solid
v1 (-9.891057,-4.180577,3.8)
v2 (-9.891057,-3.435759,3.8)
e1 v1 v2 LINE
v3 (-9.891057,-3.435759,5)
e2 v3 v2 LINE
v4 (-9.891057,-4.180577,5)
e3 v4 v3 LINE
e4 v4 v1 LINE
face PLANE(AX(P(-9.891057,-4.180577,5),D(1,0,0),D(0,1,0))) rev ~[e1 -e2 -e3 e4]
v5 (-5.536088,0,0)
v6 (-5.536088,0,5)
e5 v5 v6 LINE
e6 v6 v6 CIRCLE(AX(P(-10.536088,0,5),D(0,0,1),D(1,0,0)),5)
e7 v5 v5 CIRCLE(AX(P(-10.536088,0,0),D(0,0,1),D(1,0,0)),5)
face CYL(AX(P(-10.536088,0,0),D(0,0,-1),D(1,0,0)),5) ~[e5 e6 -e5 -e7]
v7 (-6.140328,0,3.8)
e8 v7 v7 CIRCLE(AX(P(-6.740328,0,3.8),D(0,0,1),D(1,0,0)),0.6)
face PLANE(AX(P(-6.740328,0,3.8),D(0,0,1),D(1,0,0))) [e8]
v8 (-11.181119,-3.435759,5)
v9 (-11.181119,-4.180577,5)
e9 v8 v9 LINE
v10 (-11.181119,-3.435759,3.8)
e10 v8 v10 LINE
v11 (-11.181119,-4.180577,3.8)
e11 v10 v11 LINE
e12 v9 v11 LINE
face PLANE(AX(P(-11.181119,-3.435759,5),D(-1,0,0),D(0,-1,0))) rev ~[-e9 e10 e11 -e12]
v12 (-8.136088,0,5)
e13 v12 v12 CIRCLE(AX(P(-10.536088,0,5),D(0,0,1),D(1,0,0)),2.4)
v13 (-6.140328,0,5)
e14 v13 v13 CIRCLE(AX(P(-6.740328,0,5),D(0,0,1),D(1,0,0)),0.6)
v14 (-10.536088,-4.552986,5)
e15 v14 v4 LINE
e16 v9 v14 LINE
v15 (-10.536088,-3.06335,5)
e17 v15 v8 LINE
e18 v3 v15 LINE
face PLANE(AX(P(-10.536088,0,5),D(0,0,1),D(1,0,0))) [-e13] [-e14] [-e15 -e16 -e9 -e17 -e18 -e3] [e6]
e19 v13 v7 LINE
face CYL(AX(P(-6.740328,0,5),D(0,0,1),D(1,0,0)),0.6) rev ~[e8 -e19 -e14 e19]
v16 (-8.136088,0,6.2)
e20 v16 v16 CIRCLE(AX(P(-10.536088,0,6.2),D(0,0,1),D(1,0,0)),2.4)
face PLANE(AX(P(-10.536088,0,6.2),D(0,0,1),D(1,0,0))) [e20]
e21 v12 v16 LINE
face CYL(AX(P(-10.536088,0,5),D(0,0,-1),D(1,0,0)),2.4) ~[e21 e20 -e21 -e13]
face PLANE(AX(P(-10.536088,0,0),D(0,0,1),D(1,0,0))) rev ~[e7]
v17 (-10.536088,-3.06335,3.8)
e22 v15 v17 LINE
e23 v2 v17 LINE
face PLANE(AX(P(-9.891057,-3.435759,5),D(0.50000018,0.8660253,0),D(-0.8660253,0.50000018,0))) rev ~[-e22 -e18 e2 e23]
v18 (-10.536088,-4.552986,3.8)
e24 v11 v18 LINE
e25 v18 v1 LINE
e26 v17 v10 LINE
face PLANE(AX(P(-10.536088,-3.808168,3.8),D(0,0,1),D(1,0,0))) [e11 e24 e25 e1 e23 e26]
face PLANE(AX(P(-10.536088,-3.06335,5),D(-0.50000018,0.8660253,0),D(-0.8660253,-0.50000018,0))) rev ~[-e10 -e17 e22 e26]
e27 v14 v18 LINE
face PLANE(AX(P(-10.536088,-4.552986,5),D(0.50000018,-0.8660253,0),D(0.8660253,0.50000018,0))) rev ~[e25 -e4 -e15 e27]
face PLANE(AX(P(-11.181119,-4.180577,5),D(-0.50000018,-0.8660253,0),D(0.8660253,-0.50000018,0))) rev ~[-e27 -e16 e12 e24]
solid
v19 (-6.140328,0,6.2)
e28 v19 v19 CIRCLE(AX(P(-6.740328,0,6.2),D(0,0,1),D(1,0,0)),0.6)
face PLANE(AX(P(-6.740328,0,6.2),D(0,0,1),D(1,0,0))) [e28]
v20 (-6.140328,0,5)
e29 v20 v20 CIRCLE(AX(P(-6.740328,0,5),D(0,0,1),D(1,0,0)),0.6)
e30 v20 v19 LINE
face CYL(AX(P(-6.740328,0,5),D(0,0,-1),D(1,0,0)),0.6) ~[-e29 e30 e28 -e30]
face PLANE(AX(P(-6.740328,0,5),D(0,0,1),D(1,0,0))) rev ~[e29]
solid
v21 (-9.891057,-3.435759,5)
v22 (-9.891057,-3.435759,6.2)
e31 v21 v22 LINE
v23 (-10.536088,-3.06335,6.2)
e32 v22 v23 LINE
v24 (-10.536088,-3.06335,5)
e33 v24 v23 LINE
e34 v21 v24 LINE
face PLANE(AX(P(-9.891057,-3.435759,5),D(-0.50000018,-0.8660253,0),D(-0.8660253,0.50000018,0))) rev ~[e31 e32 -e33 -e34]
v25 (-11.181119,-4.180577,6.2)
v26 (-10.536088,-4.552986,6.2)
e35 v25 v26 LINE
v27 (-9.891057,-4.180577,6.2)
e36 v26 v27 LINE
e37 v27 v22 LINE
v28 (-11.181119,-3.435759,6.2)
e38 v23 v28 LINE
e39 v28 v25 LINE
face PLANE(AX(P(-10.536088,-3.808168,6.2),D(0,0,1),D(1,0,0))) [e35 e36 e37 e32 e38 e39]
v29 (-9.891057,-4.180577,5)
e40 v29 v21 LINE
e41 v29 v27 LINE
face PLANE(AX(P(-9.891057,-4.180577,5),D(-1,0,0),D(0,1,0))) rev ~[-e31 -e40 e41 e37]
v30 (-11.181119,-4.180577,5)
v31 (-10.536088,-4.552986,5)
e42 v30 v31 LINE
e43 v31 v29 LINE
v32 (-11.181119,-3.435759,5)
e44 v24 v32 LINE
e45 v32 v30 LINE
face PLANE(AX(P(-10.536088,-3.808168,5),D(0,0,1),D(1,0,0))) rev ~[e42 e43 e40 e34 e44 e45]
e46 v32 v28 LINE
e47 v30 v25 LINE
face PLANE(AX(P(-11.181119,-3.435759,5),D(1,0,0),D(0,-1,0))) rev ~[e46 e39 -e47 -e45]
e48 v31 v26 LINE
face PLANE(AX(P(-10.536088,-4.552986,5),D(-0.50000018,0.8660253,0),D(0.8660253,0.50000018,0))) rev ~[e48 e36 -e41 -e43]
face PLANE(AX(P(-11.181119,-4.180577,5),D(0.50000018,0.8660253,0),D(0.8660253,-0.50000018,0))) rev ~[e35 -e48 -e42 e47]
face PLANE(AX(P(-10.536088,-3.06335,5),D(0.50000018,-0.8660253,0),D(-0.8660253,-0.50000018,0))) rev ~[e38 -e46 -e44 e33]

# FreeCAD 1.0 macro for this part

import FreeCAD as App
import Part
import Sketcher
from FreeCAD import Vector
Q = App.Units.Quantity

doc = App.newDocument("Part")
body = doc.addObject("PartDesign::Body", "Body")
body.AllowCompound = True

# Sketch on XY plane
sketch1 = body.newObject("Sketcher::SketchObject", "Sketch")
sketch1.AttachmentSupport = (doc.getObject("XY_Plane"), [""])
sketch1.MapMode = "FlatFace"
sketch1.addGeometry(Part.Circle(Vector(-10.536088, 0, 0), Vector(0, 0, 1), 5), False)
sketch1.addConstraint(Sketcher.Constraint("PointOnObject", 0, 3, -1))
sketch1.addConstraint(Sketcher.Constraint("Diameter", 0, Q("10 mm")))
sketch1.addConstraint(Sketcher.Constraint("DistanceX", 0, 3, -1, 1, Q("10.536088 mm")))
pad1 = body.newObject("PartDesign::Pad", "Pad")
pad1.Profile = sketch1
pad1.Length = 5

# Sketch on XY plane
sketch2 = body.newObject("Sketcher::SketchObject", "Sketch001")
sketch2.AttachmentSupport = (doc.getObject("XY_Plane"), [""])
sketch2.MapMode = "FlatFace"
sketch2.AttachmentOffset = App.Placement(Vector(0, 0, 5), App.Rotation())
sketch2.addGeometry(Part.Circle(Vector(-6.740328, 0, 0), Vector(0, 0, 1), 0.6), False)
sketch2.addGeometry(Part.LineSegment(Vector(-9.891057, -4.180577, 0), Vector(-9.891057, -3.435759, 0)), False)
sketch2.addGeometry(Part.LineSegment(Vector(-9.891057, -3.435759, 0), Vector(-10.536088, -3.06335, 0)), False)
sketch2.addGeometry(Part.LineSegment(Vector(-10.536088, -3.06335, 0), Vector(-11.181119, -3.435759, 0)), False)
sketch2.addGeometry(Part.LineSegment(Vector(-11.181119, -3.435759, 0), Vector(-11.181119, -4.180577, 0)), False)
sketch2.addGeometry(Part.LineSegment(Vector(-11.181119, -4.180577, 0), Vector(-10.536088, -4.552986, 0)), False)
sketch2.addGeometry(Part.LineSegment(Vector(-10.536088, -4.552986, 0), Vector(-9.891057, -4.180577, 0)), False)
sketch2.addConstraint(Sketcher.Constraint("Coincident", 1, 2, 2, 1))
sketch2.addConstraint(Sketcher.Constraint("Coincident", 2, 2, 3, 1))
sketch2.addConstraint(Sketcher.Constraint("Coincident", 3, 2, 4, 1))
sketch2.addConstraint(Sketcher.Constraint("Coincident", 4, 2, 5, 1))
sketch2.addConstraint(Sketcher.Constraint("Coincident", 5, 2, 6, 1))
sketch2.addConstraint(Sketcher.Constraint("Coincident", 6, 2, 1, 1))
sketch2.addConstraint(Sketcher.Constraint("Vertical", 1))
sketch2.addConstraint(Sketcher.Constraint("Vertical", 4))
sketch2.addConstraint(Sketcher.Constraint("PointOnObject", 0, 3, -1))
sketch2.addConstraint(Sketcher.Constraint("Parallel", 2, 5))
sketch2.addConstraint(Sketcher.Constraint("Parallel", 3, 6))
sketch2.addConstraint(Sketcher.Constraint("Horizontal", 1, 2, 3, 2))
sketch2.addConstraint(Sketcher.Constraint("Horizontal", 4, 2, 6, 2))
sketch2.addConstraint(Sketcher.Constraint("Vertical", 2, 2, 5, 2))
sketch2.addConstraint(Sketcher.Constraint("Diameter", 0, Q("1.2 mm")))
sketch2.addConstraint(Sketcher.Constraint("Angle", 2, Q("149.999988 deg")))
sketch2.addConstraint(Sketcher.Constraint("DistanceY", 1, 1, 1, 2, Q("0.744818 mm")))
sketch2.addConstraint(Sketcher.Constraint("DistanceY", 1, 2, -1, 1, Q("3.435759 mm")))
sketch2.addConstraint(Sketcher.Constraint("DistanceY", 2, 2, -1, 1, Q("3.06335 mm")))
sketch2.addConstraint(Sketcher.Constraint("DistanceX", 3, 2, -1, 1, Q("11.181119 mm")))
sketch2.addConstraint(Sketcher.Constraint("DistanceX", 1, 2, 0, 3, Q("3.150729 mm")))
pocket1 = body.newObject("PartDesign::Pocket", "Pocket")
pocket1.Profile = sketch2
pocket1.Length = 1.2

# Sketch on XY plane
sketch3 = body.newObject("Sketcher::SketchObject", "Sketch002")
sketch3.AttachmentSupport = (doc.getObject("XY_Plane"), [""])
sketch3.MapMode = "FlatFace"
sketch3.AttachmentOffset = App.Placement(Vector(0, 0, 5), App.Rotation())
sketch3.addGeometry(Part.Circle(Vector(-10.536088, 0, 0), Vector(0, 0, 1), 2.4), False)
sketch3.addGeometry(Part.Circle(Vector(-6.740328, 0, 0), Vector(0, 0, 1), 0.6), False)
sketch3.addGeometry(Part.LineSegment(Vector(-9.891057, -4.180577, 0), Vector(-9.891057, -3.435759, 0)), False)
sketch3.addGeometry(Part.LineSegment(Vector(-9.891057, -3.435759, 0), Vector(-10.536088, -3.06335, 0)), False)
sketch3.addGeometry(Part.LineSegment(Vector(-10.536088, -3.06335, 0), Vector(-11.181119, -3.435759, 0)), False)
sketch3.addGeometry(Part.LineSegment(Vector(-11.181119, -3.435759, 0), Vector(-11.181119, -4.180577, 0)), False)
sketch3.addGeometry(Part.LineSegment(Vector(-11.181119, -4.180577, 0), Vector(-10.536088, -4.552986, 0)), False)
sketch3.addGeometry(Part.LineSegment(Vector(-10.536088, -4.552986, 0), Vector(-9.891057, -4.180577, 0)), False)
sketch3.addConstraint(Sketcher.Constraint("Coincident", 2, 2, 3, 1))
sketch3.addConstraint(Sketcher.Constraint("Coincident", 3, 2, 4, 1))
sketch3.addConstraint(Sketcher.Constraint("Coincident", 4, 2, 5, 1))
sketch3.addConstraint(Sketcher.Constraint("Coincident", 5, 2, 6, 1))
sketch3.addConstraint(Sketcher.Constraint("Coincident", 6, 2, 7, 1))
sketch3.addConstraint(Sketcher.Constraint("Coincident", 7, 2, 2, 1))
sketch3.addConstraint(Sketcher.Constraint("Vertical", 2))
sketch3.addConstraint(Sketcher.Constraint("Vertical", 5))
sketch3.addConstraint(Sketcher.Constraint("PointOnObject", 0, 3, -1))
sketch3.addConstraint(Sketcher.Constraint("PointOnObject", 1, 3, -1))
sketch3.addConstraint(Sketcher.Constraint("Parallel", 3, 6))
sketch3.addConstraint(Sketcher.Constraint("Parallel", 4, 7))
sketch3.addConstraint(Sketcher.Constraint("Horizontal", 2, 2, 4, 2))
sketch3.addConstraint(Sketcher.Constraint("Horizontal", 5, 2, 7, 2))
sketch3.addConstraint(Sketcher.Constraint("Vertical", 0, 3, 3, 2))
sketch3.addConstraint(Sketcher.Constraint("Vertical", 3, 2, 6, 2))
sketch3.addConstraint(Sketcher.Constraint("Diameter", 0, Q("4.8 mm")))
sketch3.addConstraint(Sketcher.Constraint("Diameter", 1, Q("1.2 mm")))
sketch3.addConstraint(Sketcher.Constraint("Angle", 3, Q("149.999988 deg")))
sketch3.addConstraint(Sketcher.Constraint("DistanceY", 2, 1, 2, 2, Q("0.744818 mm")))
sketch3.addConstraint(Sketcher.Constraint("DistanceY", 2, 2, -1, 1, Q("3.435759 mm")))
sketch3.addConstraint(Sketcher.Constraint("DistanceY", 3, 2, -1, 1, Q("3.06335 mm")))
sketch3.addConstraint(Sketcher.Constraint("DistanceX", 4, 2, -1, 1, Q("11.181119 mm")))
sketch3.addConstraint(Sketcher.Constraint("DistanceX", 0, 3, 1, 3, Q("3.79576 mm")))
pad2 = body.newObject("PartDesign::Pad", "Pad001")
pad2.Profile = sketch3
pad2.Length = 1.2

doc.recompute()
